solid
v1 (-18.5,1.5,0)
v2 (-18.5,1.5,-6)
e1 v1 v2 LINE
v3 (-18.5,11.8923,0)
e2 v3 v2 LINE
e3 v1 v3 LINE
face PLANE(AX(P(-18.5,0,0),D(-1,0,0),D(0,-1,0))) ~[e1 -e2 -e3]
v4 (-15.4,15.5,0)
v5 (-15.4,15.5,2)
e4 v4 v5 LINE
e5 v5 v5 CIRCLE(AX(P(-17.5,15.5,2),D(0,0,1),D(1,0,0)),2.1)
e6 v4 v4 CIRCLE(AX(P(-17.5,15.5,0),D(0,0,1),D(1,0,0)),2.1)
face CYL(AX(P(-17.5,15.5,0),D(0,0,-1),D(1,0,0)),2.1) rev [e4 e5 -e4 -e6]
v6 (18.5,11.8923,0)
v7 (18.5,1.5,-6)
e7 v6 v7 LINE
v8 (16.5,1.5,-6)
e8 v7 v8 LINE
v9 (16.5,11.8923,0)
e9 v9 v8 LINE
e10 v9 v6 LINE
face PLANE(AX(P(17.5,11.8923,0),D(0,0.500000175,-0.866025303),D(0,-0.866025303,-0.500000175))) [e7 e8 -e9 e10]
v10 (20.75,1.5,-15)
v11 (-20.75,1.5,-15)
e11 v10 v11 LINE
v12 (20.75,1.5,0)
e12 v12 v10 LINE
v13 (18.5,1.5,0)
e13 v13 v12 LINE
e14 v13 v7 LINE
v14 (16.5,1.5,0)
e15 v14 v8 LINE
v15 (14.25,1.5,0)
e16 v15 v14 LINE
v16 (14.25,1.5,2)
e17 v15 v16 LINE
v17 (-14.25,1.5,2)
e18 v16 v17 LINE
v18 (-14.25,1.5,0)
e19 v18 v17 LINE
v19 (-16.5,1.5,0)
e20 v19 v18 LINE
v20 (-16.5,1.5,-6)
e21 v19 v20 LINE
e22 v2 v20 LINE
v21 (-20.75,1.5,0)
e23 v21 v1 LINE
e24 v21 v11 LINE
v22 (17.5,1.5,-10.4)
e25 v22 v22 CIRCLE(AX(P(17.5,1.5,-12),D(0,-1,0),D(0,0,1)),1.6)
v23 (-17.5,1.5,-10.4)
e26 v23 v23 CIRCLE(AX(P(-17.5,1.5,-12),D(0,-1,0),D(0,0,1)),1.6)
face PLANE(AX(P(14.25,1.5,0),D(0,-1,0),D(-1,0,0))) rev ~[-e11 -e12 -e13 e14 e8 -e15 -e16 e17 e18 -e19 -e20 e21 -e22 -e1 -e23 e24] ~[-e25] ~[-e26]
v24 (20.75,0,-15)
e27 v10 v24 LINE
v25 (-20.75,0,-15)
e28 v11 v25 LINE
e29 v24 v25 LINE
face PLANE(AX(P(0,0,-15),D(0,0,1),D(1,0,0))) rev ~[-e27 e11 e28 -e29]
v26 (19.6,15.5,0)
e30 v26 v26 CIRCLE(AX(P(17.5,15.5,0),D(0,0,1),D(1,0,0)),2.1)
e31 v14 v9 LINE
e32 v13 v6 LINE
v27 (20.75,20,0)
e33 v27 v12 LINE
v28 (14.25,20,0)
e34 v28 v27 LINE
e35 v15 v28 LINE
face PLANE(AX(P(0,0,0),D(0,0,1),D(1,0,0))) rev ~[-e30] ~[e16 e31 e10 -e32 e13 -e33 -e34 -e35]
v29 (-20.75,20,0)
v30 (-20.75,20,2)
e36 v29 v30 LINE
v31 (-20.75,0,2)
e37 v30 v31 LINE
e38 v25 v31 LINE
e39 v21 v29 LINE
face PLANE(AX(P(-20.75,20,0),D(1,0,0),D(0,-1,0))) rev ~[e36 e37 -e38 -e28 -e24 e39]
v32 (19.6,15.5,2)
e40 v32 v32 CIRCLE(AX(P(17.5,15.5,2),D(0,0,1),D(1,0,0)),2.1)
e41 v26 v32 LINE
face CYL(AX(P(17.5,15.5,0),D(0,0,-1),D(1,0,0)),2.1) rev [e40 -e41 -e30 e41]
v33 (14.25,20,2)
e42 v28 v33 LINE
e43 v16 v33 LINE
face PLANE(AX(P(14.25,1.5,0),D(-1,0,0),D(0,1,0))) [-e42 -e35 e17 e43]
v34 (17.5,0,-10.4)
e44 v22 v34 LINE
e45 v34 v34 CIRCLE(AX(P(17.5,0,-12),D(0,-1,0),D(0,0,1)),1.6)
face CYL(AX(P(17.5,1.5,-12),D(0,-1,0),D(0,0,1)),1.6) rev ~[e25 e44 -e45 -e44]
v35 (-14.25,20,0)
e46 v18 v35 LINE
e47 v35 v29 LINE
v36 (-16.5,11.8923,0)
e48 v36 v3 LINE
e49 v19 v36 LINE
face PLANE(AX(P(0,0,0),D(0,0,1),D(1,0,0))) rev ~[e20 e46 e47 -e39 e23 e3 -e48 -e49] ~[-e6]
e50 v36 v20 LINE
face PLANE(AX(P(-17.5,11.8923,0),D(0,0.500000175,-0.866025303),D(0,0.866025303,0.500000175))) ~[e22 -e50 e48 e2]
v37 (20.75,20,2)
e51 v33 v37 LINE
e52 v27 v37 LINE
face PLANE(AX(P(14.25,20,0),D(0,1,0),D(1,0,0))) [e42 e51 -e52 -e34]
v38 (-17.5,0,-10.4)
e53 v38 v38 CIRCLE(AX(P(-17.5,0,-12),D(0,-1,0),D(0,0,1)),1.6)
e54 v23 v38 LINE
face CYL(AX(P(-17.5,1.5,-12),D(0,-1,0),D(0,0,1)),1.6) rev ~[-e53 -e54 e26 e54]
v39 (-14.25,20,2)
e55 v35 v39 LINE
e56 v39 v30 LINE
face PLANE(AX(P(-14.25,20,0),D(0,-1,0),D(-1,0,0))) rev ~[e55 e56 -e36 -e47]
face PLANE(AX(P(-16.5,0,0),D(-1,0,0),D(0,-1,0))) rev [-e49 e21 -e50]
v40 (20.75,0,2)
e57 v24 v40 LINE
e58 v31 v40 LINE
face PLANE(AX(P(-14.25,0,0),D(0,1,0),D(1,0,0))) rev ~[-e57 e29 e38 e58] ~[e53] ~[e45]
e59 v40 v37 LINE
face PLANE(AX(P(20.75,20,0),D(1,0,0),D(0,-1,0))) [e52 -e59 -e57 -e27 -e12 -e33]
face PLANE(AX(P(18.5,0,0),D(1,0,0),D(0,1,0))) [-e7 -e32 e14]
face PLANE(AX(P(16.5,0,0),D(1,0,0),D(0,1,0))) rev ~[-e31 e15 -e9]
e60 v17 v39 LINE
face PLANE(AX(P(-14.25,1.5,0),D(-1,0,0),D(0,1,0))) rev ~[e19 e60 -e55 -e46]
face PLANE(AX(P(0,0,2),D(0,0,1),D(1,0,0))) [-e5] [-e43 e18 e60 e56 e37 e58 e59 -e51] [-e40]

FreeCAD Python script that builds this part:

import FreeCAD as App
import Part
import Sketcher

V = App.Vector
Q = App.Units.Quantity

doc = App.newDocument("Part")
body = doc.addObject("PartDesign::Body", "Body")

# Sketch on XY plane
sketch1 = doc.addObject("Sketcher::SketchObject", "Sketch")
body.addObject(sketch1)
sketch1.AttachmentSupport = (doc.XY_Plane, [""])
sketch1.MapMode = "FlatFace"
sketch1.addGeometry([
    Part.LineSegment(V(-14.2, 1.5, 0), V(-14.2, 20, 0)),  # 0
    Part.LineSegment(V(-14.2, 20, 0), V(-20.8, 20, 0)),  # 1
    Part.LineSegment(V(-20.8, 20, 0), V(-20.8, 0, 0)),  # 2
    Part.LineSegment(V(-20.8, 0, 0), V(20.8, 0, 0)),  # 3
    Part.LineSegment(V(20.8, 0, 0), V(20.8, 20, 0)),  # 4
    Part.LineSegment(V(20.8, 20, 0), V(14.2, 20, 0)),  # 5
    Part.LineSegment(V(14.2, 20, 0), V(14.2, 1.5, 0)),  # 6
    Part.LineSegment(V(14.2, 1.5, 0), V(-14.2, 1.5, 0)),  # 7
    Part.Circle(V(-17.5, 15.5, 0), V(0, 0, 1), 2.1),  # 8
    Part.Circle(V(17.5, 15.5, 0), V(0, 0, 1), 2.1),  # 9
], False)
sketch1.addConstraint([
    Sketcher.Constraint("Coincident", 0, 2, 1, 1),
    Sketcher.Constraint("Coincident", 1, 2, 2, 1),
    Sketcher.Constraint("Coincident", 2, 2, 3, 1),
    Sketcher.Constraint("Coincident", 3, 2, 4, 1),
    Sketcher.Constraint("Coincident", 4, 2, 5, 1),
    Sketcher.Constraint("Coincident", 5, 2, 6, 1),
    Sketcher.Constraint("Coincident", 6, 2, 7, 1),
    Sketcher.Constraint("Coincident", 7, 2, 0, 1),
    Sketcher.Constraint("Vertical", 0),
    Sketcher.Constraint("Horizontal", 1),
    Sketcher.Constraint("Vertical", 2),
    Sketcher.Constraint("Horizontal", 3),
    Sketcher.Constraint("Vertical", 4),
    Sketcher.Constraint("Horizontal", 5),
    Sketcher.Constraint("Vertical", 6),
    Sketcher.Constraint("Horizontal", 7),
    Sketcher.Constraint("Equal", 8, 9),
    Sketcher.Constraint("Symmetric", 2, 2, 3, 2, -1, 1),
    Sketcher.Constraint("Symmetric", 8, 3, 9, 3, -2),
    Sketcher.Constraint("Symmetric", 0, 2, 5, 2, -2),
    Sketcher.Constraint("Diameter", 8, 4.2),
    Sketcher.Constraint("DistanceY", 2, 2, 2, 1, 20.0),
    Sketcher.Constraint("DistanceX", 1, 2, 1, 1, 6.5),
    Sketcher.Constraint("DistanceX", 8, 3, 9, 3, 35.0),
    Sketcher.Constraint("DistanceX", 0, 2, 3, 2, 35.0),
    Sketcher.Constraint("DistanceY", -1, 1, 6, 2, 1.5),
    Sketcher.Constraint("DistanceY", 6, 2, 9, 3, 14.0),
])
pad1 = doc.addObject("PartDesign::Pad", "Pad")
body.addObject(pad1)
pad1.Profile = sketch1
pad1.Length = 2

# Sketch on XY plane
sketch2 = doc.addObject("Sketcher::SketchObject", "Sketch001")
body.addObject(sketch2)
sketch2.AttachmentSupport = (doc.XY_Plane, [""])
sketch2.MapMode = "FlatFace"
sketch2.addGeometry([
    Part.LineSegment(V(-20.8, 1.5, 0), V(-20.8, 0, 0)),
    Part.LineSegment(V(-20.8, 0, 0), V(20.8, 0, 0)),
    Part.LineSegment(V(20.8, 0, 0), V(20.8, 1.5, 0)),
    Part.LineSegment(V(20.8, 1.5, 0), V(-20.8, 1.5, 0)),
], False)
sketch2.addConstraint([
    Sketcher.Constraint("Coincident", 0, 2, 1, 1),
    Sketcher.Constraint("Coincident", 1, 2, 2, 1),
    Sketcher.Constraint("Coincident", 2, 2, 3, 1),
    Sketcher.Constraint("Coincident", 3, 2, 0, 1),
    Sketcher.Constraint("Vertical", 0),
    Sketcher.Constraint("Horizontal", 1),
    Sketcher.Constraint("Vertical", 2),
    Sketcher.Constraint("Horizontal", 3),
    Sketcher.Constraint("Symmetric", 0, 2, 1, 2, -1, 1),
    Sketcher.Constraint("DistanceY", 0, 2, 0, 1, 1.5),
    Sketcher.Constraint("DistanceX", 1, 1, 1, 2, 41.5),
])
pad2 = doc.addObject("PartDesign::Pad", "Pad001")
body.addObject(pad2)
pad2.Profile = sketch2
pad2.Length = 15
pad2.Reversed = True

# Sketch on YZ plane
sketch3 = doc.addObject("Sketcher::SketchObject", "Sketch002")
body.addObject(sketch3)
sketch3.AttachmentSupport = (doc.YZ_Plane, [""])
sketch3.MapMode = "FlatFace"
sketch3.AttachmentOffset = App.Placement(V(0, 0, 17.5), App.Rotation())
sketch3.addGeometry([
    Part.LineSegment(V(2, -6, 0), V(12, 0, 0)),
    Part.LineSegment(V(12, 0, 0), V(2, 0, 0)),
    Part.LineSegment(V(2, 0, 0), V(2, -6, 0)),
], False)
sketch3.addConstraint([
    Sketcher.Constraint("Coincident", 0, 2, 1, 1),
    Sketcher.Constraint("Coincident", 1, 2, 2, 1),
    Sketcher.Constraint("Coincident", 2, 2, 0, 1),
    Sketcher.Constraint("Horizontal", 1),
    Sketcher.Constraint("Vertical", 2),
    Sketcher.Constraint("PointOnObject", 0, 2, -1),
    Sketcher.Constraint("DistanceY", 2, 2, 2, 1, 6.0),
    Sketcher.Constraint("Angle", 0, Q("30 deg")),
    Sketcher.Constraint("DistanceX", -1, 1, 1, 2, 1.5),
])
pad3 = doc.addObject("PartDesign::Pad", "Pad002")
body.addObject(pad3)
pad3.Profile = sketch3
pad3.Length = 2
pad3.Midplane = True
doc.recompute()

mirrored = doc.addObject("PartDesign::Mirrored", "Mirrored")
body.addObject(mirrored)
mirrored.Originals = [pad3]
mirrored.MirrorPlane = (doc.YZ_Plane, [""])
body.Tip = mirrored

# Sketch on XZ plane
sketch4 = doc.addObject("Sketcher::SketchObject", "Sketch003")
body.addObject(sketch4)
sketch4.AttachmentSupport = (doc.XZ_Plane, [""])
sketch4.MapMode = "FlatFace"
sketch4.AttachmentOffset = App.Placement(V(0, 0, -1.5), App.Rotation())
sketch4.addGeometry([
    Part.Circle(V(17.5, -12, 0), V(0, 0, 1), 1.6),
    Part.Circle(V(-17.5, -12, 0), V(0, 0, 1), 1.6),
], False)
sketch4.addConstraint([
    Sketcher.Constraint("Equal", 0, 1),
    Sketcher.Constraint("Symmetric", 0, 3, 1, 3, -2),
    Sketcher.Constraint("Diameter", 0, 3.2),
    Sketcher.Constraint("DistanceY", 0, 3, -1, 1, 12.0),
    Sketcher.Constraint("DistanceX", 1, 3, 0, 3, 35.0),
])
doc.recompute()
hole = doc.addObject("PartDesign::Hole", "Hole")
body.addObject(hole)
hole.Profile = sketch4
hole.ThreadType = "None"
hole.Diameter = 3.2
hole.DepthType = "ThroughAll"
hole.Reversed = True

doc.recompute()
